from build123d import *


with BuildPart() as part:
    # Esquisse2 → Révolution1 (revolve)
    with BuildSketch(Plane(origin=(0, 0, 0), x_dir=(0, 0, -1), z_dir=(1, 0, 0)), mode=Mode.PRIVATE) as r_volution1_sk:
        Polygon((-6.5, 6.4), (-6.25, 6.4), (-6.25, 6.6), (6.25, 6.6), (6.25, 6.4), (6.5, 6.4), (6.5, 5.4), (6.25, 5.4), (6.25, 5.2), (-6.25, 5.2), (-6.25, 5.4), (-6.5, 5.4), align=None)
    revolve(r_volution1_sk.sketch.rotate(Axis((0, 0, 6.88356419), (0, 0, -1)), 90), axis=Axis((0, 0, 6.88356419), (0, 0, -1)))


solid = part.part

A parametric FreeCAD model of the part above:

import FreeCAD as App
import Part
import Sketcher
Q = App.Units.Quantity

doc = App.newDocument("Part")
body = doc.addObject("PartDesign::Body", "Body")

sketch1 = body.newObject("Sketcher::SketchObject", "Sketch")
sketch1.AttachmentSupport = (doc.getObject("YZ_Plane"), [""])
sketch1.MapMode = "FlatFace"
sketch1.addGeometry([
    Part.LineSegment(App.Vector(6.4, 6.25, 0), App.Vector(6.4, 6.5, 0)),
    Part.LineSegment(App.Vector(6.4, 6.5, 0), App.Vector(5.4, 6.5, 0)),
    Part.LineSegment(App.Vector(5.4, 6.5, 0), App.Vector(5.4, 6.25, 0)),
    Part.LineSegment(App.Vector(5.4, 6.25, 0), App.Vector(5.2, 6.25, 0)),
    Part.LineSegment(App.Vector(5.2, 6.25, 0), App.Vector(5.2, -6.25, 0)),
    Part.LineSegment(App.Vector(5.2, -6.25, 0), App.Vector(5.4, -6.25, 0)),
    Part.LineSegment(App.Vector(5.4, -6.25, 0), App.Vector(5.4, -6.5, 0)),
    Part.LineSegment(App.Vector(5.4, -6.5, 0), App.Vector(6.4, -6.5, 0)),
    Part.LineSegment(App.Vector(6.4, -6.5, 0), App.Vector(6.4, -6.25, 0)),
    Part.LineSegment(App.Vector(6.4, -6.25, 0), App.Vector(6.6, -6.25, 0)),
    Part.LineSegment(App.Vector(6.6, -6.25, 0), App.Vector(6.6, 6.25, 0)),
    Part.LineSegment(App.Vector(6.6, 6.25, 0), App.Vector(6.4, 6.25, 0)),
], False)
sketch1.addConstraint([
    Sketcher.Constraint("Coincident", 0, 2, 1, 1),
    Sketcher.Constraint("Coincident", 1, 2, 2, 1),
    Sketcher.Constraint("Coincident", 2, 2, 3, 1),
    Sketcher.Constraint("Coincident", 3, 2, 4, 1),
    Sketcher.Constraint("Coincident", 4, 2, 5, 1),
    Sketcher.Constraint("Coincident", 5, 2, 6, 1),
    Sketcher.Constraint("Coincident", 6, 2, 7, 1),
    Sketcher.Constraint("Coincident", 7, 2, 8, 1),
    Sketcher.Constraint("Coincident", 8, 2, 9, 1),
    Sketcher.Constraint("Coincident", 9, 2, 10, 1),
    Sketcher.Constraint("Coincident", 10, 2, 11, 1),
    Sketcher.Constraint("Coincident", 11, 2, 0, 1),
    Sketcher.Constraint("Vertical", 0),
    Sketcher.Constraint("Horizontal", 1),
    Sketcher.Constraint("Vertical", 2),
    Sketcher.Constraint("Horizontal", 3),
    Sketcher.Constraint("Vertical", 4),
    Sketcher.Constraint("Horizontal", 5),
    Sketcher.Constraint("Vertical", 6),
    Sketcher.Constraint("Horizontal", 7),
    Sketcher.Constraint("Vertical", 8),
    Sketcher.Constraint("Horizontal", 9),
    Sketcher.Constraint("Vertical", 10),
    Sketcher.Constraint("Horizontal", 11),
    Sketcher.Constraint("Symmetric", 2, 2, 5, 2, -1),
    Sketcher.Constraint("Symmetric", 0, 2, 7, 2, -1),
    Sketcher.Constraint("Horizontal", 5, 2, 8, 2),
    Sketcher.Constraint("Horizontal", 3, 2, 10, 2),
    Sketcher.Constraint("Equal", 5, 9),
    Sketcher.Constraint("DistanceX", 1, 2, 1, 1, Q("1 mm")),
    Sketcher.Constraint("DistanceX", 3, 2, 3, 1, Q("0.2 mm")),
    Sketcher.Constraint("DistanceY", 4, 2, 4, 1, Q("12.5 mm")),
    Sketcher.Constraint("DistanceY", 6, 2, 1, 2, Q("13 mm")),
    Sketcher.Constraint("DistanceX", -1, 1, 0, 2, Q("6.4 mm")),
])
revolution = body.newObject("PartDesign::Revolution", "Revolution")
revolution.Profile = sketch1
revolution.ReferenceAxis = (sketch1, ["V_Axis"])
revolution.Angle = 360

doc.recompute()
